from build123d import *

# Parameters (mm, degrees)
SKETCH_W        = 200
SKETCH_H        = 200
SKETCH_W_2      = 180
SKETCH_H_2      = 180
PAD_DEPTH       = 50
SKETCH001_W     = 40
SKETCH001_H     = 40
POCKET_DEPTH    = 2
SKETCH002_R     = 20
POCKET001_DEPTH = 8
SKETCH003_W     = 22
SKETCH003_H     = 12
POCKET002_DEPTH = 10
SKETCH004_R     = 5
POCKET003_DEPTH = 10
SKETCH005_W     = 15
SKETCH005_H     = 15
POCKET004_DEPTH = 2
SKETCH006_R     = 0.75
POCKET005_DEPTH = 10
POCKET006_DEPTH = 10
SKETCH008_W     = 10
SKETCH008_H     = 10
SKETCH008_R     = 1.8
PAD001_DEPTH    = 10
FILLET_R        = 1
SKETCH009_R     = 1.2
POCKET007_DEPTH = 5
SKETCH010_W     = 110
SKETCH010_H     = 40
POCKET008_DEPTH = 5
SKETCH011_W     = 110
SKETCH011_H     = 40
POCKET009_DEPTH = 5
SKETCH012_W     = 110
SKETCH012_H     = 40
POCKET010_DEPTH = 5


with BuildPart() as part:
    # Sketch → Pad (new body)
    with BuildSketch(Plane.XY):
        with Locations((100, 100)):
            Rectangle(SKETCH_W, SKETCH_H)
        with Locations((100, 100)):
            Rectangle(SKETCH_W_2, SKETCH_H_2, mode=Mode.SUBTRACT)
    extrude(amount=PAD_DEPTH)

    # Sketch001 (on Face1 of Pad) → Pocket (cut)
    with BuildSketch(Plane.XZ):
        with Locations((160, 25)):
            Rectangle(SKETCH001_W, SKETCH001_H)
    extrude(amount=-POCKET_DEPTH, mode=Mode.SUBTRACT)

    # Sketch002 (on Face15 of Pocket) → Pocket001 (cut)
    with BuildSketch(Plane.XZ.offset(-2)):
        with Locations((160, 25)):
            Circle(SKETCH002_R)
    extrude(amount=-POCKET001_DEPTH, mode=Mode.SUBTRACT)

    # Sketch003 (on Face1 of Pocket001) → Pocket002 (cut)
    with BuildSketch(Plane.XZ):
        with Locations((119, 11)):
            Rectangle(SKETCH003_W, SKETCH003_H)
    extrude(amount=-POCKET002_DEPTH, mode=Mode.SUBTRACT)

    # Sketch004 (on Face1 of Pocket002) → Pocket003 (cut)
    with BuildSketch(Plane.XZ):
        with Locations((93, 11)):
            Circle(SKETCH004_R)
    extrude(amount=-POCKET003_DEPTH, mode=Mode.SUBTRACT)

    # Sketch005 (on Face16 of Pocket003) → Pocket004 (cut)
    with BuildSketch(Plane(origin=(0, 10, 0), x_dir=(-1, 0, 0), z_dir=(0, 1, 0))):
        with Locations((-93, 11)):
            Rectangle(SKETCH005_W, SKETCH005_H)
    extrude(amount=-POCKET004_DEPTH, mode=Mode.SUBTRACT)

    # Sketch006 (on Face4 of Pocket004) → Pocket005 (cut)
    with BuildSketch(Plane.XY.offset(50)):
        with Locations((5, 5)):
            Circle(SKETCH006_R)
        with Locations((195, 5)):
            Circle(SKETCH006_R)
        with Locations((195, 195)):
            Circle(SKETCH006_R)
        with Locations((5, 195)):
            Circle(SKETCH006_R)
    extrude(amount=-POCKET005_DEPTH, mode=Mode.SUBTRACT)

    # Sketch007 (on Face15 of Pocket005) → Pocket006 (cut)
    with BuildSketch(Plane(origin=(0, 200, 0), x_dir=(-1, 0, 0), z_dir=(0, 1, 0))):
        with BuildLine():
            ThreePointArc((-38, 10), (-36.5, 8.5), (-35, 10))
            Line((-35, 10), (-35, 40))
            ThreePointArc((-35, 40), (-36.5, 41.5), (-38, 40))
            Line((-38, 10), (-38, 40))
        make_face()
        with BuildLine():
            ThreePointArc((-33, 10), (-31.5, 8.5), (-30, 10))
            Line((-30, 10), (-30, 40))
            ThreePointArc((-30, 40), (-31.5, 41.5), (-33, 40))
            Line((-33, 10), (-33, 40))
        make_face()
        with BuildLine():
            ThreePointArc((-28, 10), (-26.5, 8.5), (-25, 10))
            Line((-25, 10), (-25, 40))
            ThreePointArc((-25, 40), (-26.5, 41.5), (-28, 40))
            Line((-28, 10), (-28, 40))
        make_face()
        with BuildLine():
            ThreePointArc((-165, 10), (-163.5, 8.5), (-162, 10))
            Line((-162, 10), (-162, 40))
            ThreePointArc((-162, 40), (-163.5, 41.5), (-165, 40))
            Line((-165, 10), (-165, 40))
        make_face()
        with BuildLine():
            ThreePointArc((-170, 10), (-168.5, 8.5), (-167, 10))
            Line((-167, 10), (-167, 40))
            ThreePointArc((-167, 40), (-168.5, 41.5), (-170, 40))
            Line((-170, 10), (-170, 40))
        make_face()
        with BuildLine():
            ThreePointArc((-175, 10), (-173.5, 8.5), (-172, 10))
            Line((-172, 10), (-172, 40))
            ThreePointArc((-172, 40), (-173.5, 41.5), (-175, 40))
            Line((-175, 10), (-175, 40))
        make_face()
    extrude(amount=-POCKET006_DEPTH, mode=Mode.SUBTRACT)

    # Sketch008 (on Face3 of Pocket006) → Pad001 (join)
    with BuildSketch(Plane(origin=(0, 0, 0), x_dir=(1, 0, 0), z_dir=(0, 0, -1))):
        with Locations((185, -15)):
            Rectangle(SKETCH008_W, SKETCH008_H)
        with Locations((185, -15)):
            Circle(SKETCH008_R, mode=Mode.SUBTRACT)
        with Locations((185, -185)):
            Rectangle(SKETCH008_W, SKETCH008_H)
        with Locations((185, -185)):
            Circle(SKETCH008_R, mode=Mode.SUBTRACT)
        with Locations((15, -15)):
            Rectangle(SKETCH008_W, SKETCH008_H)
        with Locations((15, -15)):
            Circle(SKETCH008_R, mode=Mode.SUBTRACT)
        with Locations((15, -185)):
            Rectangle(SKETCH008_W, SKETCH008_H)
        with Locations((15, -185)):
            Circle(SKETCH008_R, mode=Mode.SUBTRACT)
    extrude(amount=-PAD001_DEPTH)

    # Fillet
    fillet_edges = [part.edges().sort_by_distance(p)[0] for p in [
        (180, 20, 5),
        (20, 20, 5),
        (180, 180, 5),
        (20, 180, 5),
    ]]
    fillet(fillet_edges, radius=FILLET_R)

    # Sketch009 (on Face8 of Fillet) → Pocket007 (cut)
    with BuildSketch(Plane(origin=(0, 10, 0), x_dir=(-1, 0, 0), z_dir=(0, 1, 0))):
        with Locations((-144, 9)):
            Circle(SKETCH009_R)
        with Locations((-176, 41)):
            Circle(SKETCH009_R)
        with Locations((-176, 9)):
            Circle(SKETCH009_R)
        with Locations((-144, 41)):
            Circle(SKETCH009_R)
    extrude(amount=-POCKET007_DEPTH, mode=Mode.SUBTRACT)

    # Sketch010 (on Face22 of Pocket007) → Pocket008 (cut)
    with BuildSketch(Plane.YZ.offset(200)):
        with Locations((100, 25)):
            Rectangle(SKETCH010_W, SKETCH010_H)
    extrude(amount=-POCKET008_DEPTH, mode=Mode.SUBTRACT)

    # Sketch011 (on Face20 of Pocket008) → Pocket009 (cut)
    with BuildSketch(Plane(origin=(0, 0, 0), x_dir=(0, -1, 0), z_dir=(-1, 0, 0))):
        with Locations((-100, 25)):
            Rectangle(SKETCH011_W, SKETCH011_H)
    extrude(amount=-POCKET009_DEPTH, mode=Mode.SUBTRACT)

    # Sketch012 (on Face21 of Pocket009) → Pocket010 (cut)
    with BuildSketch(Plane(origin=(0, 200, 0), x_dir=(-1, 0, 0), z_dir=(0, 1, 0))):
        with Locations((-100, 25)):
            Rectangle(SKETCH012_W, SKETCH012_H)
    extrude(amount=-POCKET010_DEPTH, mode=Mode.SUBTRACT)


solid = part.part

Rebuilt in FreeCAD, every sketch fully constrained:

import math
import FreeCAD as App
import Part
import Sketcher
from FreeCAD import Vector
Q = App.Units.Quantity


def edges_at(feature, points):
    """Names of the edges that pass closest to the given points."""
    edges = feature.Shape.Edges
    near = lambda p: min(range(len(edges)), key=lambda i: edges[i].distToShape(Part.Vertex(*p))[0])
    return sorted({f"Edge{near(p) + 1}" for p in points})

doc = App.newDocument("Part")
body = doc.addObject("PartDesign::Body", "Body")

sketch1 = body.newObject("Sketcher::SketchObject", "Sketch")
sketch1.AttachmentSupport = (doc.getObject("XY_Plane"), [""])
sketch1.MapMode = "FlatFace"
sketch1.addGeometry([
    Part.LineSegment(Vector(0, 200, 0), Vector(0, 0, 0)),
    Part.LineSegment(Vector(0, 0, 0), Vector(200, 0, 0)),
    Part.LineSegment(Vector(200, 0, 0), Vector(200, 200, 0)),
    Part.LineSegment(Vector(200, 200, 0), Vector(0, 200, 0)),
    Part.LineSegment(Vector(190, 10, 0), Vector(10, 10, 0)),
    Part.LineSegment(Vector(10, 10, 0), Vector(10, 190, 0)),
    Part.LineSegment(Vector(10, 190, 0), Vector(190, 190, 0)),
    Part.LineSegment(Vector(190, 190, 0), Vector(190, 10, 0)),
], False)
sketch1.addConstraint([
    Sketcher.Constraint("Coincident", 0, 2, 1, 1),
    Sketcher.Constraint("Coincident", 1, 2, 2, 1),
    Sketcher.Constraint("Coincident", 2, 2, 3, 1),
    Sketcher.Constraint("Coincident", 3, 2, 0, 1),
    Sketcher.Constraint("Coincident", 4, 2, 5, 1),
    Sketcher.Constraint("Coincident", 5, 2, 6, 1),
    Sketcher.Constraint("Coincident", 6, 2, 7, 1),
    Sketcher.Constraint("Coincident", 7, 2, 4, 1),
    Sketcher.Constraint("Vertical", 0),
    Sketcher.Constraint("Horizontal", 1),
    Sketcher.Constraint("Vertical", 2),
    Sketcher.Constraint("Horizontal", 3),
    Sketcher.Constraint("Horizontal", 4),
    Sketcher.Constraint("Vertical", 5),
    Sketcher.Constraint("Horizontal", 6),
    Sketcher.Constraint("Vertical", 7),
    Sketcher.Constraint("Coincident", 0, 2, -1, 1),
    Sketcher.Constraint("Equal", 3, 0),
    Sketcher.Constraint("Equal", 6, 5),
    Sketcher.Constraint("DistanceX", 1, 1, 1, 2, Q("200 mm")),
    Sketcher.Constraint("DistanceX", 4, 2, 4, 1, Q("180 mm")),
    Sketcher.Constraint("DistanceX", -1, 1, 4, 2, Q("10 mm")),
    Sketcher.Constraint("DistanceY", -1, 1, 4, 2, Q("10 mm")),
])
pad1 = body.newObject("PartDesign::Pad", "Pad")
pad1.Profile = sketch1
pad1.Length = 50

sketch2 = body.newObject("Sketcher::SketchObject", "Sketch001")
sketch2.AttachmentSupport = (doc.getObject("XZ_Plane"), [""])
sketch2.MapMode = "FlatFace"
sketch2.addGeometry([
    Part.LineSegment(Vector(140, 45, 0), Vector(140, 5, 0)),
    Part.LineSegment(Vector(140, 5, 0), Vector(180, 5, 0)),
    Part.LineSegment(Vector(180, 5, 0), Vector(180, 45, 0)),
    Part.LineSegment(Vector(180, 45, 0), Vector(140, 45, 0)),
], False)
sketch2.addConstraint([
    Sketcher.Constraint("Coincident", 0, 2, 1, 1),
    Sketcher.Constraint("Coincident", 1, 2, 2, 1),
    Sketcher.Constraint("Coincident", 2, 2, 3, 1),
    Sketcher.Constraint("Coincident", 3, 2, 0, 1),
    Sketcher.Constraint("Vertical", 0),
    Sketcher.Constraint("Horizontal", 1),
    Sketcher.Constraint("Vertical", 2),
    Sketcher.Constraint("Horizontal", 3),
    Sketcher.Constraint("Equal", 3, 0),
    Sketcher.Constraint("DistanceX", 1, 1, 1, 2, Q("40 mm")),
    Sketcher.Constraint("DistanceX", -1, 1, 0, 2, Q("140 mm")),
    Sketcher.Constraint("DistanceY", -1, 1, 0, 2, Q("5 mm")),
])
pocket1 = body.newObject("PartDesign::Pocket", "Pocket")
pocket1.Profile = sketch2
pocket1.Length = 2

sketch3 = body.newObject("Sketcher::SketchObject", "Sketch002")
sketch3.AttachmentSupport = (doc.getObject("XZ_Plane"), [""])
sketch3.MapMode = "FlatFace"
sketch3.AttachmentOffset = App.Placement(Vector(0, 0, -2), App.Rotation())
sketch3.addGeometry(Part.Circle(Vector(160, 25, 0), Vector(0, 0, 1), 20), False)
sketch3.addConstraint([
    Sketcher.Constraint("Diameter", 0, Q("40 mm")),
    Sketcher.Constraint("DistanceX", -1, 1, 0, 3, Q("160 mm")),
    Sketcher.Constraint("DistanceY", -1, 1, 0, 3, Q("25 mm")),
])
pocket2 = body.newObject("PartDesign::Pocket", "Pocket001")
pocket2.Profile = sketch3
pocket2.Length = 8

sketch4 = body.newObject("Sketcher::SketchObject", "Sketch003")
sketch4.AttachmentSupport = (doc.getObject("XZ_Plane"), [""])
sketch4.MapMode = "FlatFace"
sketch4.addGeometry([
    Part.LineSegment(Vector(108, 17, 0), Vector(108, 5, 0)),
    Part.LineSegment(Vector(108, 5, 0), Vector(130, 5, 0)),
    Part.LineSegment(Vector(130, 5, 0), Vector(130, 17, 0)),
    Part.LineSegment(Vector(130, 17, 0), Vector(108, 17, 0)),
], False)
sketch4.addConstraint([
    Sketcher.Constraint("Coincident", 0, 2, 1, 1),
    Sketcher.Constraint("Coincident", 1, 2, 2, 1),
    Sketcher.Constraint("Coincident", 2, 2, 3, 1),
    Sketcher.Constraint("Coincident", 3, 2, 0, 1),
    Sketcher.Constraint("Vertical", 0),
    Sketcher.Constraint("Horizontal", 1),
    Sketcher.Constraint("Vertical", 2),
    Sketcher.Constraint("Horizontal", 3),
    Sketcher.Constraint("DistanceX", 1, 1, 1, 2, Q("22 mm")),
    Sketcher.Constraint("DistanceY", 0, 2, 0, 1, Q("12 mm")),
    Sketcher.Constraint("DistanceX", -1, 1, 0, 2, Q("108 mm")),
    Sketcher.Constraint("DistanceY", -1, 1, 0, 2, Q("5 mm")),
])
pocket3 = body.newObject("PartDesign::Pocket", "Pocket002")
pocket3.Profile = sketch4
pocket3.Length = 10

sketch5 = body.newObject("Sketcher::SketchObject", "Sketch004")
sketch5.AttachmentSupport = (doc.getObject("XZ_Plane"), [""])
sketch5.MapMode = "FlatFace"
sketch5.addGeometry(Part.Circle(Vector(93, 11, 0), Vector(0, 0, 1), 5), False)
sketch5.addConstraint([
    Sketcher.Constraint("Diameter", 0, Q("10 mm")),
    Sketcher.Constraint("DistanceX", -1, 1, 0, 3, Q("93 mm")),
    Sketcher.Constraint("DistanceY", -1, 1, 0, 3, Q("11 mm")),
])
pocket4 = body.newObject("PartDesign::Pocket", "Pocket003")
pocket4.Profile = sketch5
pocket4.Length = 10

sketch6 = body.newObject("Sketcher::SketchObject", "Sketch005")
sketch6.AttachmentSupport = (doc.getObject("XZ_Plane"), [""])
sketch6.MapMode = "FlatFace"
sketch6.AttachmentOffset = App.Placement(Vector(0, 0, -10), App.Rotation())
sketch6.addGeometry([
    Part.LineSegment(Vector(100, 18, 0), Vector(100, 4, 0)),
    Part.LineSegment(Vector(100, 4, 0), Vector(86, 4, 0)),
    Part.LineSegment(Vector(86, 4, 0), Vector(86, 18, 0)),
    Part.LineSegment(Vector(86, 18, 0), Vector(100, 18, 0)),
], False)
sketch6.addConstraint([
    Sketcher.Constraint("Coincident", 0, 2, 1, 1),
    Sketcher.Constraint("Coincident", 1, 2, 2, 1),
    Sketcher.Constraint("Coincident", 2, 2, 3, 1),
    Sketcher.Constraint("Coincident", 3, 2, 0, 1),
    Sketcher.Constraint("Vertical", 0),
    Sketcher.Constraint("Horizontal", 1),
    Sketcher.Constraint("Vertical", 2),
    Sketcher.Constraint("Horizontal", 3),
    Sketcher.Constraint("Equal", 3, 0),
    Sketcher.Constraint("DistanceX", 1, 2, 1, 1, Q("15 mm")),
    Sketcher.Constraint("DistanceX", -1, 1, 0, 2, Q("100.5 mm")),
    Sketcher.Constraint("DistanceY", -1, 1, 0, 2, Q("3.5 mm")),
])
pocket5 = body.newObject("PartDesign::Pocket", "Pocket004")
pocket5.Profile = sketch6
pocket5.Length = 2
pocket5.Reversed = True

sketch7 = body.newObject("Sketcher::SketchObject", "Sketch006")
sketch7.AttachmentSupport = (doc.getObject("XY_Plane"), [""])
sketch7.MapMode = "FlatFace"
sketch7.AttachmentOffset = App.Placement(Vector(0, 0, 50), App.Rotation())
sketch7.addGeometry([
    Part.Circle(Vector(5, 5, 0), Vector(0, 0, 1), 0.8),
    Part.Circle(Vector(195, 5, 0), Vector(0, 0, 1), 0.8),
    Part.Circle(Vector(195, 195, 0), Vector(0, 0, 1), 0.8),
    Part.Circle(Vector(5, 195, 0), Vector(0, 0, 1), 0.8),
], False)
sketch7.addConstraint([
    Sketcher.Constraint("Equal", 0, 1),
    Sketcher.Constraint("Equal", 1, 2),
    Sketcher.Constraint("Equal", 2, 3),
    Sketcher.Constraint("Horizontal", 0, 3, 1, 3),
    Sketcher.Constraint("Horizontal", 2, 3, 3, 3),
    Sketcher.Constraint("Vertical", 1, 3, 2, 3),
    Sketcher.Constraint("Vertical", 0, 3, 3, 3),
    Sketcher.Constraint("Diameter", 0, Q("1.5 mm")),
    Sketcher.Constraint("DistanceX", -1, 1, 0, 3, Q("5 mm")),
    Sketcher.Constraint("DistanceY", -1, 1, 0, 3, Q("5 mm")),
    Sketcher.Constraint("DistanceX", -1, 1, 1, 3, Q("195 mm")),
    Sketcher.Constraint("DistanceY", -1, 1, 2, 3, Q("195 mm")),
])
pocket6 = body.newObject("PartDesign::Pocket", "Pocket005")
pocket6.Profile = sketch7
pocket6.Length = 10

sketch8 = body.newObject("Sketcher::SketchObject", "Sketch007")
sketch8.AttachmentSupport = (doc.getObject("XZ_Plane"), [""])
sketch8.MapMode = "FlatFace"
sketch8.AttachmentOffset = App.Placement(Vector(0, 0, -200), App.Rotation())
sketch8.addGeometry([
    Part.ArcOfCircle(Part.Circle(Vector(36.5, 10, 0), Vector(0, 0, 1), 1.5), math.radians(180), math.radians(360)),
    Part.LineSegment(Vector(35, 10, 0), Vector(35, 40, 0)),
    Part.ArcOfCircle(Part.Circle(Vector(36.5, 40, 0), Vector(0, 0, 1), 1.5), math.radians(0), math.radians(180)),
    Part.LineSegment(Vector(38, 40, 0), Vector(38, 10, 0)),
    Part.ArcOfCircle(Part.Circle(Vector(31.5, 10, 0), Vector(0, 0, 1), 1.5), math.radians(180), math.radians(360)),
    Part.LineSegment(Vector(30, 10, 0), Vector(30, 40, 0)),
    Part.ArcOfCircle(Part.Circle(Vector(31.5, 40, 0), Vector(0, 0, 1), 1.5), math.radians(0), math.radians(180)),
    Part.LineSegment(Vector(33, 40, 0), Vector(33, 10, 0)),
    Part.ArcOfCircle(Part.Circle(Vector(26.5, 10, 0), Vector(0, 0, 1), 1.5), math.radians(180), math.radians(360)),
    Part.LineSegment(Vector(25, 10, 0), Vector(25, 40, 0)),
    Part.ArcOfCircle(Part.Circle(Vector(26.5, 40, 0), Vector(0, 0, 1), 1.5), math.radians(0), math.radians(180)),
    Part.LineSegment(Vector(28, 40, 0), Vector(28, 10, 0)),
    Part.ArcOfCircle(Part.Circle(Vector(163.5, 10, 0), Vector(0, 0, 1), 1.5), math.radians(180), math.radians(360)),
    Part.LineSegment(Vector(162, 10, 0), Vector(162, 40, 0)),
    Part.ArcOfCircle(Part.Circle(Vector(163.5, 40, 0), Vector(0, 0, 1), 1.5), math.radians(0), math.radians(180)),
    Part.LineSegment(Vector(165, 40, 0), Vector(165, 10, 0)),
    Part.ArcOfCircle(Part.Circle(Vector(168.5, 10, 0), Vector(0, 0, 1), 1.5), math.radians(180), math.radians(360)),
    Part.LineSegment(Vector(167, 10, 0), Vector(167, 40, 0)),
    Part.ArcOfCircle(Part.Circle(Vector(168.5, 40, 0), Vector(0, 0, 1), 1.5), math.radians(0), math.radians(180)),
    Part.LineSegment(Vector(170, 40, 0), Vector(170, 10, 0)),
    Part.ArcOfCircle(Part.Circle(Vector(173.5, 10, 0), Vector(0, 0, 1), 1.5), math.radians(180), math.radians(360)),
    Part.LineSegment(Vector(172, 10, 0), Vector(172, 40, 0)),
    Part.ArcOfCircle(Part.Circle(Vector(173.5, 40, 0), Vector(0, 0, 1), 1.5), math.radians(0), math.radians(180)),
    Part.LineSegment(Vector(175, 40, 0), Vector(175, 10, 0)),
], False)
sketch8.addConstraint([
    Sketcher.Constraint("Tangent", 0, 1, 1, 1),
    Sketcher.Constraint("Tangent", 1, 2, 2, 2),
    Sketcher.Constraint("Tangent", 2, 1, 3, 1),
    Sketcher.Constraint("Tangent", 3, 2, 0, 2),
    Sketcher.Constraint("Tangent", 4, 1, 5, 1),
    Sketcher.Constraint("Tangent", 5, 2, 6, 2),
    Sketcher.Constraint("Tangent", 6, 1, 7, 1),
    Sketcher.Constraint("Tangent", 7, 2, 4, 2),
    Sketcher.Constraint("Tangent", 8, 1, 9, 1),
    Sketcher.Constraint("Tangent", 9, 2, 10, 2),
    Sketcher.Constraint("Tangent", 10, 1, 11, 1),
    Sketcher.Constraint("Tangent", 11, 2, 8, 2),
    Sketcher.Constraint("Tangent", 12, 1, 13, 1),
    Sketcher.Constraint("Tangent", 13, 2, 14, 2),
    Sketcher.Constraint("Tangent", 14, 1, 15, 1),
    Sketcher.Constraint("Tangent", 15, 2, 12, 2),
    Sketcher.Constraint("Tangent", 16, 1, 17, 1),
    Sketcher.Constraint("Tangent", 17, 2, 18, 2),
    Sketcher.Constraint("Tangent", 18, 1, 19, 1),
    Sketcher.Constraint("Tangent", 19, 2, 16, 2),
    Sketcher.Constraint("Tangent", 20, 1, 21, 1),
    Sketcher.Constraint("Tangent", 21, 2, 22, 2),
    Sketcher.Constraint("Tangent", 22, 1, 23, 1),
    Sketcher.Constraint("Tangent", 23, 2, 20, 2),
    Sketcher.Constraint("Vertical", 1),
    Sketcher.Constraint("Vertical", 3),
    Sketcher.Constraint("Vertical", 5),
    Sketcher.Constraint("Vertical", 7),
    Sketcher.Constraint("Vertical", 9),
    Sketcher.Constraint("Vertical", 11),
    Sketcher.Constraint("Vertical", 13),
    Sketcher.Constraint("Vertical", 15),
    Sketcher.Constraint("Vertical", 17),
    Sketcher.Constraint("Vertical", 19),
    Sketcher.Constraint("Vertical", 21),
    Sketcher.Constraint("Vertical", 23),
    Sketcher.Constraint("Equal", 2, 4),
    Sketcher.Constraint("Equal", 6, 8),
    Sketcher.Constraint("Equal", 10, 12),
    Sketcher.Constraint("Equal", 14, 16),
    Sketcher.Constraint("Equal", 18, 20),
    Sketcher.Constraint("Horizontal", 0, 3, 4, 3),
    Sketcher.Constraint("Horizontal", 2, 3, 6, 3),
    Sketcher.Constraint("Horizontal", 4, 3, 8, 3),
    Sketcher.Constraint("Horizontal", 6, 3, 10, 3),
    Sketcher.Constraint("Horizontal", 8, 3, 12, 3),
    Sketcher.Constraint("Horizontal", 10, 3, 14, 3),
    Sketcher.Constraint("Horizontal", 12, 3, 16, 3),
    Sketcher.Constraint("Horizontal", 14, 3, 18, 3),
    Sketcher.Constraint("Horizontal", 16, 3, 20, 3),
    Sketcher.Constraint("Horizontal", 18, 3, 22, 3),
    Sketcher.Constraint("Radius", 0, Q("1.5 mm")),
    Sketcher.Constraint("DistanceY", 1, 1, 1, 2, Q("30 mm")),
    Sketcher.Constraint("DistanceY", -1, 1, 0, 3, Q("10 mm")),
    Sketcher.Constraint("DistanceX", -1, 1, 0, 1, Q("35 mm")),
    Sketcher.Constraint("DistanceX", -1, 1, 4, 1, Q("30 mm")),
    Sketcher.Constraint("DistanceX", -1, 1, 8, 1, Q("25 mm")),
    Sketcher.Constraint("DistanceX", -1, 1, 12, 1, Q("162 mm")),
    Sketcher.Constraint("DistanceX", -1, 1, 16, 1, Q("167 mm")),
    Sketcher.Constraint("DistanceX", -1, 1, 20, 1, Q("172 mm")),
])
pocket7 = body.newObject("PartDesign::Pocket", "Pocket006")
pocket7.Profile = sketch8
pocket7.Length = 10
pocket7.Reversed = True

sketch9 = body.newObject("Sketcher::SketchObject", "Sketch008")
sketch9.AttachmentSupport = (doc.getObject("XY_Plane"), [""])
sketch9.MapMode = "FlatFace"
sketch9.addGeometry([
    Part.LineSegment(Vector(180, 10, 0), Vector(180, 20, 0)),
    Part.LineSegment(Vector(180, 20, 0), Vector(190, 20, 0)),
    Part.LineSegment(Vector(190, 20, 0), Vector(190, 10, 0)),
    Part.LineSegment(Vector(190, 10, 0), Vector(180, 10, 0)),
    Part.Circle(Vector(185, 15, 0), Vector(0, 0, 1), 1.8),
    Part.LineSegment(Vector(180, 180, 0), Vector(180, 190, 0)),
    Part.LineSegment(Vector(180, 190, 0), Vector(190, 190, 0)),
    Part.LineSegment(Vector(190, 190, 0), Vector(190, 180, 0)),
    Part.LineSegment(Vector(190, 180, 0), Vector(180, 180, 0)),
    Part.Circle(Vector(185, 185, 0), Vector(0, 0, 1), 1.8),
    Part.LineSegment(Vector(10, 10, 0), Vector(10, 20, 0)),
    Part.LineSegment(Vector(10, 20, 0), Vector(20, 20, 0)),
    Part.LineSegment(Vector(20, 20, 0), Vector(20, 10, 0)),
    Part.LineSegment(Vector(20, 10, 0), Vector(10, 10, 0)),
    Part.Circle(Vector(15, 15, 0), Vector(0, 0, 1), 1.8),
    Part.LineSegment(Vector(10, 180, 0), Vector(10, 190, 0)),
    Part.LineSegment(Vector(10, 190, 0), Vector(20, 190, 0)),
    Part.LineSegment(Vector(20, 190, 0), Vector(20, 180, 0)),
    Part.LineSegment(Vector(20, 180, 0), Vector(10, 180, 0)),
    Part.Circle(Vector(15, 185, 0), Vector(0, 0, 1), 1.8),
], False)
sketch9.addConstraint([
    Sketcher.Constraint("Coincident", 0, 2, 1, 1),
    Sketcher.Constraint("Coincident", 1, 2, 2, 1),
    Sketcher.Constraint("Coincident", 2, 2, 3, 1),
    Sketcher.Constraint("Coincident", 3, 2, 0, 1),
    Sketcher.Constraint("Coincident", 5, 2, 6, 1),
    Sketcher.Constraint("Coincident", 6, 2, 7, 1),
    Sketcher.Constraint("Coincident", 7, 2, 8, 1),
    Sketcher.Constraint("Coincident", 8, 2, 5, 1),
    Sketcher.Constraint("Coincident", 10, 2, 11, 1),
    Sketcher.Constraint("Coincident", 11, 2, 12, 1),
    Sketcher.Constraint("Coincident", 12, 2, 13, 1),
    Sketcher.Constraint("Coincident", 13, 2, 10, 1),
    Sketcher.Constraint("Coincident", 15, 2, 16, 1),
    Sketcher.Constraint("Coincident", 16, 2, 17, 1),
    Sketcher.Constraint("Coincident", 17, 2, 18, 1),
    Sketcher.Constraint("Coincident", 18, 2, 15, 1),
    Sketcher.Constraint("Vertical", 0),
    Sketcher.Constraint("Horizontal", 1),
    Sketcher.Constraint("Vertical", 2),
    Sketcher.Constraint("Horizontal", 3),
    Sketcher.Constraint("Vertical", 5),
    Sketcher.Constraint("Horizontal", 6),
    Sketcher.Constraint("Vertical", 7),
    Sketcher.Constraint("Horizontal", 8),
    Sketcher.Constraint("Vertical", 10),
    Sketcher.Constraint("Horizontal", 11),
    Sketcher.Constraint("Vertical", 12),
    Sketcher.Constraint("Horizontal", 13),
    Sketcher.Constraint("Vertical", 15),
    Sketcher.Constraint("Horizontal", 16),
    Sketcher.Constraint("Vertical", 17),
    Sketcher.Constraint("Horizontal", 18),
    Sketcher.Constraint("Equal", 4, 9),
    Sketcher.Constraint("Equal", 9, 14),
    Sketcher.Constraint("Equal", 14, 19),
    Sketcher.Constraint("Horizontal", 4, 3, 14, 3),
    Sketcher.Constraint("Horizontal", 9, 3, 19, 3),
    Sketcher.Constraint("Horizontal", 1, 2, 10, 2),
    Sketcher.Constraint("Horizontal", 3, 2, 12, 2),
    Sketcher.Constraint("Horizontal", 6, 2, 15, 2),
    Sketcher.Constraint("Horizontal", 8, 2, 17, 2),
    Sketcher.Constraint("Vertical", 4, 3, 9, 3),
    Sketcher.Constraint("Vertical", 14, 3, 19, 3),
    Sketcher.Constraint("Vertical", 3, 2, 5, 2),
    Sketcher.Constraint("Vertical", 2, 2, 6, 2),
    Sketcher.Constraint("Vertical", 13, 2, 15, 2),
    Sketcher.Constraint("Vertical", 12, 2, 16, 2),
    Sketcher.Constraint("Equal", 8, 11),
    Sketcher.Constraint("Equal", 18, 0),
    Sketcher.Constraint("Equal", 2, 5),
    Sketcher.Constraint("Diameter", 4, Q("3.6 mm")),
    Sketcher.Constraint("DistanceX", 1, 1, 1, 2, Q("10 mm")),
    Sketcher.Constraint("DistanceX", -1, 1, 4, 3, Q("185 mm")),
    Sketcher.Constraint("DistanceY", -1, 1, 4, 3, Q("15 mm")),
    Sketcher.Constraint("DistanceY", -1, 1, 9, 3, Q("185 mm")),
    Sketcher.Constraint("DistanceX", -1, 1, 14, 3, Q("15 mm")),
    Sketcher.Constraint("DistanceX", -1, 1, 0, 2, Q("180 mm")),
    Sketcher.Constraint("DistanceY", -1, 1, 0, 2, Q("20 mm")),
    Sketcher.Constraint("DistanceY", -1, 1, 5, 2, Q("190 mm")),
    Sketcher.Constraint("DistanceX", -1, 1, 10, 2, Q("10 mm")),
])
pad2 = body.newObject("PartDesign::Pad", "Pad001")
pad2.Profile = sketch9
pad2.Length = 10
doc.recompute()

fillet = body.newObject("PartDesign::Fillet", "Fillet")
fillet.Base = (pad2, edges_at(pad2, [
    (180, 20, 5),
    (20, 20, 5),
    (180, 180, 5),
    (20, 180, 5),
]))
fillet.Radius = 1

sketch10 = body.newObject("Sketcher::SketchObject", "Sketch009")
sketch10.AttachmentSupport = (doc.getObject("XZ_Plane"), [""])
sketch10.MapMode = "FlatFace"
sketch10.AttachmentOffset = App.Placement(Vector(0, 0, -10), App.Rotation())
sketch10.addGeometry([
    Part.Circle(Vector(144, 9, 0), Vector(0, 0, 1), 1.2),
    Part.Circle(Vector(176, 41, 0), Vector(0, 0, 1), 1.2),
    Part.Circle(Vector(176, 9, 0), Vector(0, 0, 1), 1.2),
    Part.Circle(Vector(144, 41, 0), Vector(0, 0, 1), 1.2),
], False)
sketch10.addConstraint([
    Sketcher.Constraint("Equal", 0, 1),
    Sketcher.Constraint("Equal", 1, 2),
    Sketcher.Constraint("Equal", 2, 3),
    Sketcher.Constraint("Horizontal", 0, 3, 2, 3),
    Sketcher.Constraint("Horizontal", 1, 3, 3, 3),
    Sketcher.Constraint("Vertical", 1, 3, 2, 3),
    Sketcher.Constraint("Vertical", 0, 3, 3, 3),
    Sketcher.Constraint("Diameter", 0, Q("2.4 mm")),
    Sketcher.Constraint("DistanceX", -1, 1, 0, 3, Q("144 mm")),
    Sketcher.Constraint("DistanceY", -1, 1, 0, 3, Q("9 mm")),
    Sketcher.Constraint("DistanceX", -1, 1, 1, 3, Q("176 mm")),
    Sketcher.Constraint("DistanceY", -1, 1, 1, 3, Q("41 mm")),
])
pocket8 = body.newObject("PartDesign::Pocket", "Pocket007")
pocket8.Profile = sketch10
pocket8.Length = 5
pocket8.Reversed = True

sketch11 = body.newObject("Sketcher::SketchObject", "Sketch010")
sketch11.AttachmentSupport = (doc.getObject("YZ_Plane"), [""])
sketch11.MapMode = "FlatFace"
sketch11.AttachmentOffset = App.Placement(Vector(0, 0, 200), App.Rotation())
sketch11.addGeometry([
    Part.LineSegment(Vector(45, 45, 0), Vector(45, 5, 0)),
    Part.LineSegment(Vector(45, 5, 0), Vector(155, 5, 0)),
    Part.LineSegment(Vector(155, 5, 0), Vector(155, 45, 0)),
    Part.LineSegment(Vector(155, 45, 0), Vector(45, 45, 0)),
], False)
sketch11.addConstraint([
    Sketcher.Constraint("Coincident", 0, 2, 1, 1),
    Sketcher.Constraint("Coincident", 1, 2, 2, 1),
    Sketcher.Constraint("Coincident", 2, 2, 3, 1),
    Sketcher.Constraint("Coincident", 3, 2, 0, 1),
    Sketcher.Constraint("Vertical", 0),
    Sketcher.Constraint("Horizontal", 1),
    Sketcher.Constraint("Vertical", 2),
    Sketcher.Constraint("Horizontal", 3),
    Sketcher.Constraint("DistanceX", 1, 1, 1, 2, Q("110 mm")),
    Sketcher.Constraint("DistanceY", 0, 2, 0, 1, Q("40 mm")),
    Sketcher.Constraint("DistanceX", -1, 1, 0, 2, Q("45 mm")),
    Sketcher.Constraint("DistanceY", -1, 1, 0, 2, Q("5 mm")),
])
pocket9 = body.newObject("PartDesign::Pocket", "Pocket008")
pocket9.Profile = sketch11
pocket9.Length = 5

sketch12 = body.newObject("Sketcher::SketchObject", "Sketch011")
sketch12.AttachmentSupport = (doc.getObject("YZ_Plane"), [""])
sketch12.MapMode = "FlatFace"
sketch12.addGeometry([
    Part.LineSegment(Vector(155, 45, 0), Vector(155, 5, 0)),
    Part.LineSegment(Vector(155, 5, 0), Vector(45, 5, 0)),
    Part.LineSegment(Vector(45, 5, 0), Vector(45, 45, 0)),
    Part.LineSegment(Vector(45, 45, 0), Vector(155, 45, 0)),
], False)
sketch12.addConstraint([
    Sketcher.Constraint("Coincident", 0, 2, 1, 1),
    Sketcher.Constraint("Coincident", 1, 2, 2, 1),
    Sketcher.Constraint("Coincident", 2, 2, 3, 1),
    Sketcher.Constraint("Coincident", 3, 2, 0, 1),
    Sketcher.Constraint("Vertical", 0),
    Sketcher.Constraint("Horizontal", 1),
    Sketcher.Constraint("Vertical", 2),
    Sketcher.Constraint("Horizontal", 3),
    Sketcher.Constraint("DistanceX", 1, 2, 1, 1, Q("110 mm")),
    Sketcher.Constraint("DistanceY", 0, 2, 0, 1, Q("40 mm")),
    Sketcher.Constraint("DistanceX", -1, 1, 0, 2, Q("155 mm")),
    Sketcher.Constraint("DistanceY", -1, 1, 0, 2, Q("5 mm")),
])
pocket10 = body.newObject("PartDesign::Pocket", "Pocket009")
pocket10.Profile = sketch12
pocket10.Length = 5
pocket10.Reversed = True

sketch13 = body.newObject("Sketcher::SketchObject", "Sketch012")
sketch13.AttachmentSupport = (doc.getObject("XZ_Plane"), [""])
sketch13.MapMode = "FlatFace"
sketch13.AttachmentOffset = App.Placement(Vector(0, 0, -200), App.Rotation())
sketch13.addGeometry([
    Part.LineSegment(Vector(155, 45, 0), Vector(155, 5, 0)),
    Part.LineSegment(Vector(155, 5, 0), Vector(45, 5, 0)),
    Part.LineSegment(Vector(45, 5, 0), Vector(45, 45, 0)),
    Part.LineSegment(Vector(45, 45, 0), Vector(155, 45, 0)),
], False)
sketch13.addConstraint([
    Sketcher.Constraint("Coincident", 0, 2, 1, 1),
    Sketcher.Constraint("Coincident", 1, 2, 2, 1),
    Sketcher.Constraint("Coincident", 2, 2, 3, 1),
    Sketcher.Constraint("Coincident", 3, 2, 0, 1),
    Sketcher.Constraint("Vertical", 0),
    Sketcher.Constraint("Horizontal", 1),
    Sketcher.Constraint("Vertical", 2),
    Sketcher.Constraint("Horizontal", 3),
    Sketcher.Constraint("DistanceX", 1, 2, 1, 1, Q("110 mm")),
    Sketcher.Constraint("DistanceY", 0, 2, 0, 1, Q("40 mm")),
    Sketcher.Constraint("DistanceX", -1, 1, 0, 2, Q("155 mm")),
    Sketcher.Constraint("DistanceY", -1, 1, 0, 2, Q("5 mm")),
])
pocket11 = body.newObject("PartDesign::Pocket", "Pocket010")
pocket11.Profile = sketch13
pocket11.Length = 5
pocket11.Reversed = True

doc.recompute()
